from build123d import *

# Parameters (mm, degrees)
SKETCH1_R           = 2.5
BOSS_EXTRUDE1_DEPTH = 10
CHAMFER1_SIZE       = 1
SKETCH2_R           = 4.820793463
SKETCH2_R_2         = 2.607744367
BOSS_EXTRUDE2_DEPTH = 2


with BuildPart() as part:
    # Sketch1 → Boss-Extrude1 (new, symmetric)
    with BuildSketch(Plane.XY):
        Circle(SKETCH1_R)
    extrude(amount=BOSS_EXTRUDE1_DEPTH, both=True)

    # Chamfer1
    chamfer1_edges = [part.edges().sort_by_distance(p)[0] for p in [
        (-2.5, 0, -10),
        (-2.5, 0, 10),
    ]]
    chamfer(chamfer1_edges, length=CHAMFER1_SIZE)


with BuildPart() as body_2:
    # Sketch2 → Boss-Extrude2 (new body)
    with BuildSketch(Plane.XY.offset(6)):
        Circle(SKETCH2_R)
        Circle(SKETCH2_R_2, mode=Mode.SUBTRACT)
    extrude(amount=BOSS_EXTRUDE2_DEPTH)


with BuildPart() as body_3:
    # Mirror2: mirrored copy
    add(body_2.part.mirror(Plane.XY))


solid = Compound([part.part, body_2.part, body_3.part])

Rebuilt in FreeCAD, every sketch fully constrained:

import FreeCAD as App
import Part
import Sketcher
from FreeCAD import Vector


def edges_at(feature, points):
    """Names of the edges that pass closest to the given points."""
    edges = feature.Shape.Edges
    near = lambda p: min(range(len(edges)), key=lambda i: edges[i].distToShape(Part.Vertex(*p))[0])
    return sorted({f"Edge{near(p) + 1}" for p in points})

doc = App.newDocument("Part")
body = doc.addObject("PartDesign::Body", "Body")

sketch1 = body.newObject("Sketcher::SketchObject", "Sketch")
sketch1.AttachmentSupport = (doc.getObject("XY_Plane"), [""])
sketch1.MapMode = "FlatFace"
sketch1.addGeometry(Part.Circle(Vector(0, 0, 0), Vector(0, 0, 1), 2.5), False)
sketch1.addConstraint([
    Sketcher.Constraint("Coincident", 0, 3, -1, 1),
    Sketcher.Constraint("Diameter", 0, 5.0),
])
pad1 = body.newObject("PartDesign::Pad", "Pad")
pad1.Profile = sketch1
pad1.Length = 20
pad1.Midplane = True
doc.recompute()

chamfer = body.newObject("PartDesign::Chamfer", "Chamfer")
chamfer.Base = (pad1, edges_at(pad1, [(-2.5, 0, -10), (-2.5, 0, 10)]))
chamfer.Size = 1
body2 = doc.addObject("PartDesign::Body", "Body001")

sketch2 = body2.newObject("Sketcher::SketchObject", "Sketch001")
sketch2.AttachmentSupport = (doc.getObject("XY_Plane001"), [""])
sketch2.MapMode = "FlatFace"
sketch2.AttachmentOffset = App.Placement(Vector(0, 0, 6), App.Rotation())
sketch2.addGeometry([
    Part.Circle(Vector(0, 0, 0), Vector(0, 0, 1), 4.8),
    Part.Circle(Vector(0, 0, 0), Vector(0, 0, 1), 2.6),
], False)
sketch2.addConstraint([
    Sketcher.Constraint("Coincident", 0, 3, -1, 1),
    Sketcher.Constraint("Coincident", 1, 3, -1, 1),
    Sketcher.Constraint("Diameter", 1, 5.215489),
    Sketcher.Constraint("Diameter", 0, 9.641587),
])
pad2 = body2.newObject("PartDesign::Pad", "Pad001")
pad2.Profile = sketch2
pad2.Length = 2
body3 = doc.addObject("PartDesign::Body", "Body002")
doc.recompute()

mirroring = doc.addObject("Part::Mirroring", "Mirroring")
mirroring.Source = body2
mirroring.Base = Vector(0, 0, 0)
mirroring.Normal = Vector(0, 0, 1)
body3.BaseFeature = mirroring
doc.recompute()
mirroring.Visibility = False

doc.recompute()
